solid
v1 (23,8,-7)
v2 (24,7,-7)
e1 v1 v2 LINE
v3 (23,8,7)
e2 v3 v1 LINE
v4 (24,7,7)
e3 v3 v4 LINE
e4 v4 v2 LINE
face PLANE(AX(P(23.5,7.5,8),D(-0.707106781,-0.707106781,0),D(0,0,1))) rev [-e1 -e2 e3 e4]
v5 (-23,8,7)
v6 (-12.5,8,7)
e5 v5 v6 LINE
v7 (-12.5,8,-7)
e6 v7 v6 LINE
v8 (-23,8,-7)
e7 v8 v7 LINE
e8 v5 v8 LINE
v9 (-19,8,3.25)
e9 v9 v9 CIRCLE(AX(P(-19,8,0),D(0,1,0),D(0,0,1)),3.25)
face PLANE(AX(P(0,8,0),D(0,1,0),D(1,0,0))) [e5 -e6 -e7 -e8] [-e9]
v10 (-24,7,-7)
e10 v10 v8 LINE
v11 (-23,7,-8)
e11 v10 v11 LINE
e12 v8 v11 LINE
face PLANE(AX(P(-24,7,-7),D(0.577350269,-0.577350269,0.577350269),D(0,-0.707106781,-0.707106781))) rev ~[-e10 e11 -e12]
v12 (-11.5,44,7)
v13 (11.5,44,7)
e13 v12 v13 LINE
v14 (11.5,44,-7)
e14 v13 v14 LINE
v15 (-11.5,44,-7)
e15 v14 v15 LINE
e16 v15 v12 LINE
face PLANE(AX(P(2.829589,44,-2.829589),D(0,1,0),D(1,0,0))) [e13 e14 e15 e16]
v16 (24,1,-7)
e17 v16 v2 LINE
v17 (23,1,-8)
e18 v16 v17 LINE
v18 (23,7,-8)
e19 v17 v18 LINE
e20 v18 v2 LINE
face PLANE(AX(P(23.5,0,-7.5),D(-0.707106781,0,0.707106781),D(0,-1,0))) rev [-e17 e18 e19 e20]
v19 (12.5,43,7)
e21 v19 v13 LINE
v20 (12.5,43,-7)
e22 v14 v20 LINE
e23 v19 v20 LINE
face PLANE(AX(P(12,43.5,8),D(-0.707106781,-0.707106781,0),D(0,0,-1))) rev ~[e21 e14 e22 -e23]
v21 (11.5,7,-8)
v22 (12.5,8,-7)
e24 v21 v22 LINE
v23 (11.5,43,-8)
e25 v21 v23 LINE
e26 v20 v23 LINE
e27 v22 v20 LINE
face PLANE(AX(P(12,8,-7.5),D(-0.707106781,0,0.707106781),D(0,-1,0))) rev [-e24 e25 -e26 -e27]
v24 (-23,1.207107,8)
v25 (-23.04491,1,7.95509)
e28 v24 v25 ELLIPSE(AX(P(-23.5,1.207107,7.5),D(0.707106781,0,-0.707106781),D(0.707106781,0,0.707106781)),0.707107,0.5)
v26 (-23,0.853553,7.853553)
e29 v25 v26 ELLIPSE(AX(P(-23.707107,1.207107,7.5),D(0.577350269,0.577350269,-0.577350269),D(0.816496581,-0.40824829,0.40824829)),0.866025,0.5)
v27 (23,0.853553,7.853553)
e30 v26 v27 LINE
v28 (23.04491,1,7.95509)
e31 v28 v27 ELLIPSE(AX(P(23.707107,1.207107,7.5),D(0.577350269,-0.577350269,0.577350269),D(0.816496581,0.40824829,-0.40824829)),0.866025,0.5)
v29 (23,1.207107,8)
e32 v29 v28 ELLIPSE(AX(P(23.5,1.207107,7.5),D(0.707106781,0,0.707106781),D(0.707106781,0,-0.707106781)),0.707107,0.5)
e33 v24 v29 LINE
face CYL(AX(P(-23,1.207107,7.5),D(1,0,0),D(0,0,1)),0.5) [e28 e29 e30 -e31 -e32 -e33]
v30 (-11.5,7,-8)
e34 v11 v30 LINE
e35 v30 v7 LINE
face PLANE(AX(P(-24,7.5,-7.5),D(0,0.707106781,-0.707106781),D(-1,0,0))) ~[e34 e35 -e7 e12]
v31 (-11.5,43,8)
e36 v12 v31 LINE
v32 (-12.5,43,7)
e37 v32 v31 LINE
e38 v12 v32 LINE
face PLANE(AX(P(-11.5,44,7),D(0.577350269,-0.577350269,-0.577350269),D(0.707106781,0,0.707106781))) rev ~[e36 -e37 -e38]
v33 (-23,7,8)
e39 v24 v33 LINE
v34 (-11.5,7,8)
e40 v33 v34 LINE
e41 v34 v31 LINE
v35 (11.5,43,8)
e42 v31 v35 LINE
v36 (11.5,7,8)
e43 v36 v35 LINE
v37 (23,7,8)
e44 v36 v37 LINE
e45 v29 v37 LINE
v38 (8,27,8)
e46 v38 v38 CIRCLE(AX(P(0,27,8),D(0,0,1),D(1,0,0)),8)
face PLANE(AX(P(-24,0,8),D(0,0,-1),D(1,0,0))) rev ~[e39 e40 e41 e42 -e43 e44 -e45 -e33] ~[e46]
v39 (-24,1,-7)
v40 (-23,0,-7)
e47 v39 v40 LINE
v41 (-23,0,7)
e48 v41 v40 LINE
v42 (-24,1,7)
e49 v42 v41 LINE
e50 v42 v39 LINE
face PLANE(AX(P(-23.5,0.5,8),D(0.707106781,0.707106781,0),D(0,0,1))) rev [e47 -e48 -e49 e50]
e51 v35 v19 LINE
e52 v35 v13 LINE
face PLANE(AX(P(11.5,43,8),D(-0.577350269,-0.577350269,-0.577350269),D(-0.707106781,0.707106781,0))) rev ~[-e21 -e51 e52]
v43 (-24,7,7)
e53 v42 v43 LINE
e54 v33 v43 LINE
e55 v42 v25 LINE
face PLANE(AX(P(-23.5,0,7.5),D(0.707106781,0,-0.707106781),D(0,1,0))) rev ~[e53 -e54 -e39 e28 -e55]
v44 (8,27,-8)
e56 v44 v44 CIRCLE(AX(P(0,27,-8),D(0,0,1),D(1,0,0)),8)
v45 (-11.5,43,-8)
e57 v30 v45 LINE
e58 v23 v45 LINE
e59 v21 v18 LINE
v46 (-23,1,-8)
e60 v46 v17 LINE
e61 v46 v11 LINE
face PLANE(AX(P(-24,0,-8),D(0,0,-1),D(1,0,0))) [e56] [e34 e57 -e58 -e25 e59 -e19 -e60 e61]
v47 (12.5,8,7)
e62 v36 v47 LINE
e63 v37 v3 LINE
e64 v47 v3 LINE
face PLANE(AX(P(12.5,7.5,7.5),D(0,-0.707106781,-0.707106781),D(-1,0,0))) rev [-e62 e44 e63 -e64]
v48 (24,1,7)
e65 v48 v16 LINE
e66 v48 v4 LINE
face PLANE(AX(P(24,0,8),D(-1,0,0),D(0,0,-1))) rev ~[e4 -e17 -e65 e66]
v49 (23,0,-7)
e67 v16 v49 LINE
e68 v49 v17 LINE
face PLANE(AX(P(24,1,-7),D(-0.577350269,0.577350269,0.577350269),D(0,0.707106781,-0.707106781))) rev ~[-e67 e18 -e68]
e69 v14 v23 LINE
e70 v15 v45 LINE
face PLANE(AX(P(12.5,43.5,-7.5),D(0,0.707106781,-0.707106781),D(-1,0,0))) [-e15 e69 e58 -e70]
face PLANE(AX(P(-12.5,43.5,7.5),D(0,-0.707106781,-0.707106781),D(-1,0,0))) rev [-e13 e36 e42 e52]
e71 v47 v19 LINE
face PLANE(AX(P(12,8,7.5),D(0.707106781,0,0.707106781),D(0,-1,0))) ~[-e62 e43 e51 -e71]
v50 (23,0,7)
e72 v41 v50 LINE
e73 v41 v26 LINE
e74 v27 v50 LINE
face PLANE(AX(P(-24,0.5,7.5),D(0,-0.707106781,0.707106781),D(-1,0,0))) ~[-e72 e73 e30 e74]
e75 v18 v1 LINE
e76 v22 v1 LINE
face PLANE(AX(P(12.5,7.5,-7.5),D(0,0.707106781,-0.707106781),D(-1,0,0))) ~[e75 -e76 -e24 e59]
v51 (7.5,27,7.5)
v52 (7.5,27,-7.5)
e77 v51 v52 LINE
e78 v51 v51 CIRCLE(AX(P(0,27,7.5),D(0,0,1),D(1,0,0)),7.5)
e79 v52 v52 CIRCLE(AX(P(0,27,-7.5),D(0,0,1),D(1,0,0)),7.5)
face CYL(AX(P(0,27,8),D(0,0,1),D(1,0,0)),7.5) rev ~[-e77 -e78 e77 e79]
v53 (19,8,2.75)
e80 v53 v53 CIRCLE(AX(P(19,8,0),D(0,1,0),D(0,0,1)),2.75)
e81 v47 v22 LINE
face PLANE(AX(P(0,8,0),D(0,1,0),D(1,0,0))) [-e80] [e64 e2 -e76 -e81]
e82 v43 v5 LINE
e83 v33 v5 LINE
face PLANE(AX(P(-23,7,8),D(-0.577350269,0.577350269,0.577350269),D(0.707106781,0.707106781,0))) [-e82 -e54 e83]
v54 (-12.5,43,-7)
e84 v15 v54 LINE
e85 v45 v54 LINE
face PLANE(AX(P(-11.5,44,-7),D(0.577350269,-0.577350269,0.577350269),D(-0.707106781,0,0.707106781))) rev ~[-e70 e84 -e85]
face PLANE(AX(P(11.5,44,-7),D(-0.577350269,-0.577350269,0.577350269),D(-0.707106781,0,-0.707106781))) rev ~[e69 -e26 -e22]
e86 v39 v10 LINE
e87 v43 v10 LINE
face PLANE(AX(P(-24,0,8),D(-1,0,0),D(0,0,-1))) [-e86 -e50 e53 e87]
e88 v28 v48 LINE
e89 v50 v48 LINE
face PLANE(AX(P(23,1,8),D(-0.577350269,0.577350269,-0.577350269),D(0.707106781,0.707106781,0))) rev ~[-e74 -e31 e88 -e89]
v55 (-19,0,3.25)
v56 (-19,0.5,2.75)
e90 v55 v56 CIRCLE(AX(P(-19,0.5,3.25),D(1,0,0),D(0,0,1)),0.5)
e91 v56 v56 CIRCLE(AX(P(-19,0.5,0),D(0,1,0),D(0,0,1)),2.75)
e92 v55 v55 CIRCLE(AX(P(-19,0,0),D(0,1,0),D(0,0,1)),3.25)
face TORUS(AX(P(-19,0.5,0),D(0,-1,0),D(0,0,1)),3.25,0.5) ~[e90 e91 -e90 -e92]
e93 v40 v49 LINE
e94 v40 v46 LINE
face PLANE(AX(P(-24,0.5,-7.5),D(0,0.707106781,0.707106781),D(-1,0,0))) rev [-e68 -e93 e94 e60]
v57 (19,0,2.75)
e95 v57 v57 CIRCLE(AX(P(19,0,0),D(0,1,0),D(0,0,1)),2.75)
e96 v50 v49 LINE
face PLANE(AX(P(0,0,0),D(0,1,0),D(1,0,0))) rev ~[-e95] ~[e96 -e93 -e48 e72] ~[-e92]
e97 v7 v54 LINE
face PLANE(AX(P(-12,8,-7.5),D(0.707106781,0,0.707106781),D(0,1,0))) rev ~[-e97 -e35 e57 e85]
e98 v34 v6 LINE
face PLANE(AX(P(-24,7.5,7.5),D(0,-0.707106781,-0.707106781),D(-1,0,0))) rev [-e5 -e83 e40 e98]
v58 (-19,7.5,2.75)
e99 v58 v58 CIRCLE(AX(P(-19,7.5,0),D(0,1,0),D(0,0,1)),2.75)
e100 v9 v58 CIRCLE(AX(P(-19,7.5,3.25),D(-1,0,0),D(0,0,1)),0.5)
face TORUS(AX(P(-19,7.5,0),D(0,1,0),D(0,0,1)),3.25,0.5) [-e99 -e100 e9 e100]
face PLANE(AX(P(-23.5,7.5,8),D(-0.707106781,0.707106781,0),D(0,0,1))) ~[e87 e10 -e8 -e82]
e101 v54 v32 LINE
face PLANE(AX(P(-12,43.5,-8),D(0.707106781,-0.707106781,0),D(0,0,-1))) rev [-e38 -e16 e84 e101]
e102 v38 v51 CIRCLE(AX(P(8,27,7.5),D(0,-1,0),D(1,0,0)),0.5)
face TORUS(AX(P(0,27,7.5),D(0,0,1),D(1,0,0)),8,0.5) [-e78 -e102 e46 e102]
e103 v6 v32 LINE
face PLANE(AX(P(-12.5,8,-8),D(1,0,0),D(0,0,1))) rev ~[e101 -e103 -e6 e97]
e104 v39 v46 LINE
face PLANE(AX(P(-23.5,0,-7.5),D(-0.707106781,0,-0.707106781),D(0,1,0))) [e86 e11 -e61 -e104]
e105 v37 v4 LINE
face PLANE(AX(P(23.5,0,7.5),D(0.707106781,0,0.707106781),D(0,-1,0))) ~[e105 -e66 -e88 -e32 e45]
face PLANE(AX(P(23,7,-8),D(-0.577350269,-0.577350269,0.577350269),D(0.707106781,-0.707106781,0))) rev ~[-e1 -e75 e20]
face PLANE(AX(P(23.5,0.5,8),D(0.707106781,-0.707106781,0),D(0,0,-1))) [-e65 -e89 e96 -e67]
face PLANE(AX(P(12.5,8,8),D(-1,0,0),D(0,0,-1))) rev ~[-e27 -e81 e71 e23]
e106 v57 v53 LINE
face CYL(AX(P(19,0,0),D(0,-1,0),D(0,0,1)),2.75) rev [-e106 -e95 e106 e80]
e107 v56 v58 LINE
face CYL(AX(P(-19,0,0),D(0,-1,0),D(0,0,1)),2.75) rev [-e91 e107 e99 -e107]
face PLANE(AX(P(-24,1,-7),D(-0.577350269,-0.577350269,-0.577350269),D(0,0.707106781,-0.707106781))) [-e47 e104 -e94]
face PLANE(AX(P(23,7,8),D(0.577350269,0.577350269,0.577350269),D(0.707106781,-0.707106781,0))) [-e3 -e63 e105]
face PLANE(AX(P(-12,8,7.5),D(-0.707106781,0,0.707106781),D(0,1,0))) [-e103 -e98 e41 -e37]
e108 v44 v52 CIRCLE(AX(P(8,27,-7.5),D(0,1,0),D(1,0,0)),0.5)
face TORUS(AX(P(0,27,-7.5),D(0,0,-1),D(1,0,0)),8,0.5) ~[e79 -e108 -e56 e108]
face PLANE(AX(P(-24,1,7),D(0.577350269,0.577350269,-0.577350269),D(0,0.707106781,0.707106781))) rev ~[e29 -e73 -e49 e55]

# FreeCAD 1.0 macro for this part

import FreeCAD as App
import Part
import Sketcher

V = App.Vector
Q = App.Units.Quantity


def edges_at(feature, points):
    """Names of the edges that pass closest to the given points."""
    edges = feature.Shape.Edges
    near = lambda p: min(range(len(edges)), key=lambda i: edges[i].distToShape(Part.Vertex(*p))[0])
    return sorted({f"Edge{near(p) + 1}" for p in points})

doc = App.newDocument("Part")
params = doc.addObject("Spreadsheet::Sheet", "Params")
for row, (alias, value) in enumerate([
    ("sketch1_diameter", "5.5 mm"),
    ("sketch1_width", "48 mm"),
    ("sketch1_height", "16 mm"),
    ("pad1_length", "8 mm"),
    ("sketch2_width", "25 mm"),
    ("sketch2_height", "16 mm"),
    ("pad2_length", "36 mm"),
    ("sketch3_diameter", "15 mm"),
    ("pocket1_length", "36 mm"),
    ("chamfer_size", "1 mm"),
    ("fillet_radius", "0.5 mm"),
], start=1):
    params.set(f"A{row}", alias)
    params.set(f"B{row}", "=" + value)
    params.setAlias(f"B{row}", alias)

body = doc.addObject("PartDesign::Body", "Body")

# Sketch on XZ plane
sketch1 = body.newObject("Sketcher::SketchObject", "Sketch")
sketch1.AttachmentSupport = (doc.getObject("XZ_Plane"), [""])
sketch1.MapMode = "FlatFace"
sketch1.addGeometry([
    Part.LineSegment(V(-24, -8, 0), V(-24, 8, 0)),  # 0
    Part.LineSegment(V(-24, 8, 0), V(24, 8, 0)),  # 1
    Part.LineSegment(V(24, 8, 0), V(24, -8, 0)),  # 2
    Part.LineSegment(V(24, -8, 0), V(-24, -8, 0)),  # 3
    Part.Circle(V(-19, 0, 0), V(0, 0, 1), 2.8),  # 4
    Part.Circle(V(19, 0, 0), V(0, 0, 1), 2.8),  # 5
], False)
sketch1.addConstraint([
    Sketcher.Constraint("Coincident", 0, 2, 1, 1),
    Sketcher.Constraint("Coincident", 1, 2, 2, 1),
    Sketcher.Constraint("Coincident", 2, 2, 3, 1),
    Sketcher.Constraint("Coincident", 3, 2, 0, 1),
    Sketcher.Constraint("Vertical", 0),
    Sketcher.Constraint("Horizontal", 1),
    Sketcher.Constraint("Vertical", 2),
    Sketcher.Constraint("Horizontal", 3),
    Sketcher.Constraint("Equal", 4, 5),
    Sketcher.Constraint("Symmetric", 4, 3, 5, 3, -1, 1),
    Sketcher.Constraint("Symmetric", 0, 2, 2, 2, -1, 1),
    Sketcher.Constraint("PointOnObject", 4, 3, -1),
    Sketcher.Constraint("Diameter", 4, Q("5.5 mm")),
    Sketcher.Constraint("DistanceX", 1, 1, 1, 2, Q("48 mm")),
    Sketcher.Constraint("DistanceY", 0, 1, 0, 2, Q("16 mm")),
    Sketcher.Constraint("DistanceX", 4, 3, -1, 1, Q("19 mm")),
])
sketch1.setExpression("Constraints[12]", "Params.sketch1_diameter")
sketch1.setExpression("Constraints[13]", "Params.sketch1_width")
sketch1.setExpression("Constraints[14]", "Params.sketch1_height")
pad1 = body.newObject("PartDesign::Pad", "Pad")
pad1.Profile = sketch1
pad1.setExpression("Length", "Params.pad1_length")
pad1.Reversed = True

# Sketch on XZ plane
sketch2 = body.newObject("Sketcher::SketchObject", "Sketch001")
sketch2.AttachmentSupport = (doc.getObject("XZ_Plane"), [""])
sketch2.MapMode = "FlatFace"
sketch2.AttachmentOffset = App.Placement(V(0, 0, -8), App.Rotation())
sketch2.addGeometry([
    Part.LineSegment(V(12, 8, 0), V(12, -8, 0)),
    Part.LineSegment(V(12, -8, 0), V(-12, -8, 0)),
    Part.LineSegment(V(-12, -8, 0), V(-12, 8, 0)),
    Part.LineSegment(V(-12, 8, 0), V(12, 8, 0)),
], False)
sketch2.addConstraint([
    Sketcher.Constraint("Coincident", 0, 2, 1, 1),
    Sketcher.Constraint("Coincident", 1, 2, 2, 1),
    Sketcher.Constraint("Coincident", 2, 2, 3, 1),
    Sketcher.Constraint("Coincident", 3, 2, 0, 1),
    Sketcher.Constraint("Vertical", 0),
    Sketcher.Constraint("Horizontal", 1),
    Sketcher.Constraint("Vertical", 2),
    Sketcher.Constraint("Horizontal", 3),
    Sketcher.Constraint("Symmetric", 0, 2, 2, 2, -1, 1),
    Sketcher.Constraint("DistanceX", 1, 2, 1, 1, Q("25 mm")),
    Sketcher.Constraint("DistanceY", 0, 2, 0, 1, Q("16 mm")),
])
sketch2.setExpression("Constraints[9]", "Params.sketch2_width")
sketch2.setExpression("Constraints[10]", "Params.sketch2_height")
pad2 = body.newObject("PartDesign::Pad", "Pad001")
pad2.Profile = sketch2
pad2.setExpression("Length", "Params.pad2_length")
pad2.Reversed = True

# Sketch on XY plane
sketch3 = body.newObject("Sketcher::SketchObject", "Sketch002")
sketch3.AttachmentSupport = (doc.getObject("XY_Plane"), [""])
sketch3.MapMode = "FlatFace"
sketch3.AttachmentOffset = App.Placement(V(0, 0, 8), App.Rotation())
sketch3.addGeometry(Part.Circle(V(0, 27, 0), V(0, 0, 1), 8), False)
sketch3.addConstraint([
    Sketcher.Constraint("PointOnObject", 0, 3, -2),
    Sketcher.Constraint("Diameter", 0, Q("15 mm")),
    Sketcher.Constraint("DistanceY", -1, 1, 0, 3, Q("27 mm")),
])
sketch3.setExpression("Constraints[1]", "Params.sketch3_diameter")
pocket1 = body.newObject("PartDesign::Pocket", "Pocket")
pocket1.Profile = sketch3
pocket1.setExpression("Length", "Params.pocket1_length")
doc.recompute()

chamfer = body.newObject("PartDesign::Chamfer", "Chamfer")
chamfer.Base = (pocket1, edges_at(pocket1, [
    (24, 8, 0),
    (18.25, 8, -8),
    (18.25, 8, 8),
    (-18.25, 8, -8),
    (12.5, 26, -8),
    (-12.5, 26, -8),
    (-12.5, 26, 8),
    (12.5, 44, 0),
    (12.5, 26, 8),
    (0, 44, -8),
    (-12.5, 44, 0),
    (0, 44, 8),
    (-24, 8, 0),
    (0, 0, -8),
    (24, 0, 0),
    (0, 0, 8),
    (-24, 0, 0),
    (-24, 4, -8),
    (24, 4, -8),
    (24, 4, 8),
    (-24, 4, 8),
    (-18.25, 8, 8),
]))
chamfer.setExpression("Size", "Params.chamfer_size")
doc.recompute()

fillet = body.newObject("PartDesign::Fillet", "Fillet")
fillet.Base = (chamfer, edges_at(chamfer, [
    (-19, 0, -2.75),
    (-19, 8, -2.75),
    (-7.5, 27, -8),
    (-7.5, 27, 8),
    (0, 1, 8),
]))
fillet.setExpression("Radius", "Params.fillet_radius")

doc.recompute()
